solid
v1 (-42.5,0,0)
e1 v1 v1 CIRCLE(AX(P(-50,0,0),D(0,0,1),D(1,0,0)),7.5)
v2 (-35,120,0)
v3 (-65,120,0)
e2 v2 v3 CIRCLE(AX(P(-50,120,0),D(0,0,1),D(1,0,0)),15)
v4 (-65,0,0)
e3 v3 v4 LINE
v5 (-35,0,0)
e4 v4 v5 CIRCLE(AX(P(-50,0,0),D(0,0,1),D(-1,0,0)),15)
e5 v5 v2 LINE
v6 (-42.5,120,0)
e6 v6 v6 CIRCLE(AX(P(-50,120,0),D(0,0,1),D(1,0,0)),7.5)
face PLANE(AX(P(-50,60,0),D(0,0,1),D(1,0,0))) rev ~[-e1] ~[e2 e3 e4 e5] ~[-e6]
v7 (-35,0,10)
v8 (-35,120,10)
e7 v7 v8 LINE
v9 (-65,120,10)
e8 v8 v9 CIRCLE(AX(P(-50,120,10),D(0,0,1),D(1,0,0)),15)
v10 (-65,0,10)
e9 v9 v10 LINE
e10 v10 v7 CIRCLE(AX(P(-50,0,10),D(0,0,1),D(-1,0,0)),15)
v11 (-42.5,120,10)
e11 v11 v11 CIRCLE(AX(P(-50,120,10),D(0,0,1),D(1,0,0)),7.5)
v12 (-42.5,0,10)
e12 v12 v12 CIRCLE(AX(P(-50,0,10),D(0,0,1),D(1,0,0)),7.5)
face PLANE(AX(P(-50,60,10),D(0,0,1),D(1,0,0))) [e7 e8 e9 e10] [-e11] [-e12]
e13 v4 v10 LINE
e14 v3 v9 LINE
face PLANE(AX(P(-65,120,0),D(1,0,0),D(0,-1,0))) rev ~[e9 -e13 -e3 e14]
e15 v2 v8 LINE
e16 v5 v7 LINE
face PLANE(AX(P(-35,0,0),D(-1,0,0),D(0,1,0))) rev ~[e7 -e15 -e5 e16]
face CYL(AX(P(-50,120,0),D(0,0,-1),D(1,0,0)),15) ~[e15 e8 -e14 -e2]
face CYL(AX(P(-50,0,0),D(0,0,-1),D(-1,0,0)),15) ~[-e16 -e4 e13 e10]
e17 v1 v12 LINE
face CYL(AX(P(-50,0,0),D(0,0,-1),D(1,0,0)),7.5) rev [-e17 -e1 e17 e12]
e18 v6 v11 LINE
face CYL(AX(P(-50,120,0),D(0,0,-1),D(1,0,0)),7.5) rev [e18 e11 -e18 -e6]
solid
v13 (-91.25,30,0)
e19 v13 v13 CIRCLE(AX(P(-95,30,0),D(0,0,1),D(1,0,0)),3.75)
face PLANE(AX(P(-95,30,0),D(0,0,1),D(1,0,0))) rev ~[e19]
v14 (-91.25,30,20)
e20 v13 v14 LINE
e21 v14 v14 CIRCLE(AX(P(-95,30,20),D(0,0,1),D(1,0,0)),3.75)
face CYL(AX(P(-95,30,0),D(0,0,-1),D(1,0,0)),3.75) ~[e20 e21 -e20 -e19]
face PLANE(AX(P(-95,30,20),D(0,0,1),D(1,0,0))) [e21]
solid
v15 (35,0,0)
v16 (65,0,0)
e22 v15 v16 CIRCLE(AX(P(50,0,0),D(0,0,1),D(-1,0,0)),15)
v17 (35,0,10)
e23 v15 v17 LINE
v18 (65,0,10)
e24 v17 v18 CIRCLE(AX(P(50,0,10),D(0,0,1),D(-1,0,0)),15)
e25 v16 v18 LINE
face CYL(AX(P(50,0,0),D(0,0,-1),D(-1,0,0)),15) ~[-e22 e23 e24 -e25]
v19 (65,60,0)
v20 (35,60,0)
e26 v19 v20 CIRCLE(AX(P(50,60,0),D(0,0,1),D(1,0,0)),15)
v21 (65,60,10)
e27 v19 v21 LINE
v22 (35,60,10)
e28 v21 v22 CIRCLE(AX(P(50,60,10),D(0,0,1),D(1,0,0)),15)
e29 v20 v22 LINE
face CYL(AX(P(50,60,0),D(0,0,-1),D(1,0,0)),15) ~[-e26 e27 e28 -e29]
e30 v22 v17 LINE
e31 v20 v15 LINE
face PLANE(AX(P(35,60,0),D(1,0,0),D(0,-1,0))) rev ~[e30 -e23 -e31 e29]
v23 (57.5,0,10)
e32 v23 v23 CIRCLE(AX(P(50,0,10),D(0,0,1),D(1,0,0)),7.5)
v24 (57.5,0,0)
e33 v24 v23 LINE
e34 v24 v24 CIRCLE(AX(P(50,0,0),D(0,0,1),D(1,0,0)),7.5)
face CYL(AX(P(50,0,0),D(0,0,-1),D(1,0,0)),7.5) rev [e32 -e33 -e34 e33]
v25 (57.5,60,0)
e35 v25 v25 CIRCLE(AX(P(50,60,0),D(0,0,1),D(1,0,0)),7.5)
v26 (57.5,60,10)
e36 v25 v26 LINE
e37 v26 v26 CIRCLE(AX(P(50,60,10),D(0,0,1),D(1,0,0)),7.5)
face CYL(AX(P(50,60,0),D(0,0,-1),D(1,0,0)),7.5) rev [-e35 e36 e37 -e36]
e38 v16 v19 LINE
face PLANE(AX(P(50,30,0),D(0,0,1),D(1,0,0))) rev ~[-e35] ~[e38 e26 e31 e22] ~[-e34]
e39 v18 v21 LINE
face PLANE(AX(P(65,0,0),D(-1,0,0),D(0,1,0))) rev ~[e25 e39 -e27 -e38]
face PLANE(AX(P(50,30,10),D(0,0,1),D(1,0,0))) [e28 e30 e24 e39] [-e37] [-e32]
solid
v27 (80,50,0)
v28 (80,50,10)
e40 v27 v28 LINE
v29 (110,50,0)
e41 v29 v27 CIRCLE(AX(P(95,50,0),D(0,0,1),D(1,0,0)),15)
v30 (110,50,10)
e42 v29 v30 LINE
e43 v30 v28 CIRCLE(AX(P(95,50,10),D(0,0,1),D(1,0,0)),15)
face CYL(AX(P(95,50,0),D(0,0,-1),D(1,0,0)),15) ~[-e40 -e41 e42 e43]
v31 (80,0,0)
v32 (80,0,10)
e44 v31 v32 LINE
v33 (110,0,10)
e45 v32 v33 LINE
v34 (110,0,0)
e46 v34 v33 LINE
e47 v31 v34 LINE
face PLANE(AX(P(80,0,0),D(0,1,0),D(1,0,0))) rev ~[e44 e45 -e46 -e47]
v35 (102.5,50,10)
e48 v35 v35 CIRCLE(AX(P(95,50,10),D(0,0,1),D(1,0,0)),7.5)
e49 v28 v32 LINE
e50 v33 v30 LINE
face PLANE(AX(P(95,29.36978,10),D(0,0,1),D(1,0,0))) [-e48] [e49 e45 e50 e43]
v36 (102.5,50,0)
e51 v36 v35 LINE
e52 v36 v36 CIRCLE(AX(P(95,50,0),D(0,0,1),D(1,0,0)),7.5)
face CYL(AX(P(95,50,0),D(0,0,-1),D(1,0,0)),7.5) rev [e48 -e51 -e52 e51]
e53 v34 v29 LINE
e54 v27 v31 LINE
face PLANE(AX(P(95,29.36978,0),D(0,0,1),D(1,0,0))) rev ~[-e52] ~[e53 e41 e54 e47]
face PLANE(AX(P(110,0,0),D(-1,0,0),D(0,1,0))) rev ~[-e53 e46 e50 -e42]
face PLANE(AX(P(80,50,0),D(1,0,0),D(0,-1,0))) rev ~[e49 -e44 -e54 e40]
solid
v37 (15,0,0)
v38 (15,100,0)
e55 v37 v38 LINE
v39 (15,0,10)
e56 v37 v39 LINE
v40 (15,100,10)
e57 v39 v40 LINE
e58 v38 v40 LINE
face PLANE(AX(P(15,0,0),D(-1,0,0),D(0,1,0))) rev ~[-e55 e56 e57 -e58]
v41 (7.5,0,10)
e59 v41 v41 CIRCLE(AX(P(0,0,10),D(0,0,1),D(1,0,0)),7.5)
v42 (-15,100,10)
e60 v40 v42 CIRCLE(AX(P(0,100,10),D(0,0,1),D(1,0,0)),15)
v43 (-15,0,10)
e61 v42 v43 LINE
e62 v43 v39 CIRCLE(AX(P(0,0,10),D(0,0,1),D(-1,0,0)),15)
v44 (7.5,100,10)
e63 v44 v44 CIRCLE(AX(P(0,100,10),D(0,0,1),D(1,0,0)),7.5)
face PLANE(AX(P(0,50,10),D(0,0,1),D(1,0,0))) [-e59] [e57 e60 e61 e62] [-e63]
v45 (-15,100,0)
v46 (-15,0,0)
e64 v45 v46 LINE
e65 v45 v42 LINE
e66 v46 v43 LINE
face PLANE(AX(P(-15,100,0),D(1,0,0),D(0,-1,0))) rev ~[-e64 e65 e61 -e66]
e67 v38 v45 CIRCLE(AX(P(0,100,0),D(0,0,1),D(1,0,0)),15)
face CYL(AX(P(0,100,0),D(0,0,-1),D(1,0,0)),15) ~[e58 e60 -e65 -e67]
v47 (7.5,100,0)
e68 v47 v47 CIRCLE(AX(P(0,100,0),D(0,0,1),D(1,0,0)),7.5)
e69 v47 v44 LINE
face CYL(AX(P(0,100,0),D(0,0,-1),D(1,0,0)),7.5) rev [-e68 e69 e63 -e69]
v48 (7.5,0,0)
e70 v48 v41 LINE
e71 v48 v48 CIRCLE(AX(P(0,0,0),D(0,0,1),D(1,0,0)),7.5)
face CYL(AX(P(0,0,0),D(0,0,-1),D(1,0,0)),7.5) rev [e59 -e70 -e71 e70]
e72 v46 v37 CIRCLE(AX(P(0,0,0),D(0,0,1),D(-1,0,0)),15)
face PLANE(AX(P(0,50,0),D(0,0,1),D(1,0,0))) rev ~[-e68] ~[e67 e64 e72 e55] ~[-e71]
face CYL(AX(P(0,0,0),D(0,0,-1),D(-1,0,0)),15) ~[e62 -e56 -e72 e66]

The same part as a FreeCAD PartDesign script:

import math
import FreeCAD as App
import Part
import Sketcher

V = App.Vector

doc = App.newDocument("Part")
body = doc.addObject("PartDesign::Body", "Body")

sketch1 = body.newObject("Sketcher::SketchObject", "Sketch")
sketch1.AttachmentSupport = (doc.getObject("XY_Plane"), [""])
sketch1.MapMode = "FlatFace"
sketch1.addGeometry(Part.LineSegment(V(-35, 0, 0), V(-35, 120, 0)), False)
sketch1.addGeometry(Part.ArcOfCircle(Part.Circle(V(-50, 120, 0), V(0, 0, 1), 15), math.radians(0), math.radians(180)), False)
sketch1.addGeometry(Part.LineSegment(V(-65, 120, 0), V(-65, 0, 0)), False)
sketch1.addGeometry(Part.ArcOfCircle(Part.Circle(V(-50, 0, 0), V(0, 0, 1), 15), math.radians(180), math.radians(360)), False)
sketch1.addGeometry(Part.Circle(V(-50, 0, 0), V(0, 0, 1), 8), False)
sketch1.addGeometry(Part.Circle(V(-50, 120, 0), V(0, 0, 1), 8), False)
sketch1.addConstraint(Sketcher.Constraint("Tangent", 0, 2, 1, 1))
sketch1.addConstraint(Sketcher.Constraint("Tangent", 1, 2, 2, 1))
sketch1.addConstraint(Sketcher.Constraint("Tangent", 2, 2, 3, 1))
sketch1.addConstraint(Sketcher.Constraint("Tangent", 3, 2, 0, 1))
sketch1.addConstraint(Sketcher.Constraint("Vertical", 0))
sketch1.addConstraint(Sketcher.Constraint("Vertical", 2))
sketch1.addConstraint(Sketcher.Constraint("Coincident", 4, 3, 3, 3))
sketch1.addConstraint(Sketcher.Constraint("Coincident", 5, 3, 1, 3))
sketch1.addConstraint(Sketcher.Constraint("Equal", 4, 5))
sketch1.addConstraint(Sketcher.Constraint("PointOnObject", 3, 3, -1))
sketch1.addConstraint(Sketcher.Constraint("Diameter", 4, 15.0))
sketch1.addConstraint(Sketcher.Constraint("Radius", 1, 15.0))
sketch1.addConstraint(Sketcher.Constraint("DistanceY", 0, 1, 0, 2, 120.0))
sketch1.addConstraint(Sketcher.Constraint("DistanceX", 1, 3, -1, 1, 50.0))
pad1 = body.newObject("PartDesign::Pad", "Pad")
pad1.Profile = sketch1
pad1.Length = 10
body2 = doc.addObject("PartDesign::Body", "Body001")

sketch2 = body2.newObject("Sketcher::SketchObject", "Sketch001")
sketch2.AttachmentSupport = (doc.getObject("XY_Plane001"), [""])
sketch2.MapMode = "FlatFace"
sketch2.addGeometry(Part.ArcOfCircle(Part.Circle(V(0, 0, 0), V(0, 0, 1), 15), math.radians(180), math.radians(360)), False)
sketch2.addGeometry(Part.LineSegment(V(15, 0, 0), V(15, 100, 0)), False)
sketch2.addGeometry(Part.ArcOfCircle(Part.Circle(V(0, 100, 0), V(0, 0, 1), 15), math.radians(0), math.radians(180)), False)
sketch2.addGeometry(Part.LineSegment(V(-15, 100, 0), V(-15, 0, 0)), False)
sketch2.addGeometry(Part.Circle(V(0, 0, 0), V(0, 0, 1), 8), False)
sketch2.addGeometry(Part.Circle(V(0, 100, 0), V(0, 0, 1), 8), False)
sketch2.addConstraint(Sketcher.Constraint("Tangent", 0, 2, 1, 1))
sketch2.addConstraint(Sketcher.Constraint("Tangent", 1, 2, 2, 1))
sketch2.addConstraint(Sketcher.Constraint("Tangent", 2, 2, 3, 1))
sketch2.addConstraint(Sketcher.Constraint("Tangent", 3, 2, 0, 1))
sketch2.addConstraint(Sketcher.Constraint("Vertical", 1))
sketch2.addConstraint(Sketcher.Constraint("Vertical", 3))
sketch2.addConstraint(Sketcher.Constraint("Coincident", 0, 3, -1, 1))
sketch2.addConstraint(Sketcher.Constraint("Coincident", 4, 3, -1, 1))
sketch2.addConstraint(Sketcher.Constraint("Coincident", 5, 3, 2, 3))
sketch2.addConstraint(Sketcher.Constraint("Equal", 4, 5))
sketch2.addConstraint(Sketcher.Constraint("Diameter", 4, 15.0))
sketch2.addConstraint(Sketcher.Constraint("Radius", 0, 15.0))
sketch2.addConstraint(Sketcher.Constraint("DistanceY", 1, 1, 1, 2, 100.0))
pad2 = body2.newObject("PartDesign::Pad", "Pad001")
pad2.Profile = sketch2
pad2.Length = 10
body3 = doc.addObject("PartDesign::Body", "Body002")

sketch3 = body3.newObject("Sketcher::SketchObject", "Sketch002")
sketch3.AttachmentSupport = (doc.getObject("XY_Plane002"), [""])
sketch3.MapMode = "FlatFace"
sketch3.addGeometry(Part.ArcOfCircle(Part.Circle(V(50, 0, 0), V(0, 0, 1), 15), math.radians(180), math.radians(360)), False)
sketch3.addGeometry(Part.LineSegment(V(65, 0, 0), V(65, 60, 0)), False)
sketch3.addGeometry(Part.ArcOfCircle(Part.Circle(V(50, 60, 0), V(0, 0, 1), 15), math.radians(0), math.radians(180)), False)
sketch3.addGeometry(Part.LineSegment(V(35, 60, 0), V(35, 0, 0)), False)
sketch3.addGeometry(Part.Circle(V(50, 0, 0), V(0, 0, 1), 8), False)
sketch3.addGeometry(Part.Circle(V(50, 60, 0), V(0, 0, 1), 8), False)
sketch3.addConstraint(Sketcher.Constraint("Tangent", 0, 2, 1, 1))
sketch3.addConstraint(Sketcher.Constraint("Tangent", 1, 2, 2, 1))
sketch3.addConstraint(Sketcher.Constraint("Tangent", 2, 2, 3, 1))
sketch3.addConstraint(Sketcher.Constraint("Tangent", 3, 2, 0, 1))
sketch3.addConstraint(Sketcher.Constraint("Vertical", 1))
sketch3.addConstraint(Sketcher.Constraint("Vertical", 3))
sketch3.addConstraint(Sketcher.Constraint("Coincident", 4, 3, 0, 3))
sketch3.addConstraint(Sketcher.Constraint("Coincident", 5, 3, 2, 3))
sketch3.addConstraint(Sketcher.Constraint("Equal", 4, 5))
sketch3.addConstraint(Sketcher.Constraint("PointOnObject", 0, 3, -1))
sketch3.addConstraint(Sketcher.Constraint("Diameter", 4, 15.0))
sketch3.addConstraint(Sketcher.Constraint("Radius", 0, 15.0))
sketch3.addConstraint(Sketcher.Constraint("DistanceY", 1, 1, 1, 2, 60.0))
sketch3.addConstraint(Sketcher.Constraint("DistanceX", -1, 1, 0, 3, 50.0))
pad3 = body3.newObject("PartDesign::Pad", "Pad002")
pad3.Profile = sketch3
pad3.Length = 10
body4 = doc.addObject("PartDesign::Body", "Body003")

sketch4 = body4.newObject("Sketcher::SketchObject", "Sketch003")
sketch4.AttachmentSupport = (doc.getObject("XY_Plane003"), [""])
sketch4.MapMode = "FlatFace"
sketch4.addGeometry(Part.LineSegment(V(80, 50, 0), V(80, 0, 0)), False)
sketch4.addGeometry(Part.LineSegment(V(80, 0, 0), V(110, 0, 0)), False)
sketch4.addGeometry(Part.LineSegment(V(110, 0, 0), V(110, 50, 0)), False)
sketch4.addGeometry(Part.ArcOfCircle(Part.Circle(V(95, 50, 0), V(0, 0, 1), 15), math.radians(0), math.radians(180)), False)
sketch4.addGeometry(Part.Circle(V(95, 50, 0), V(0, 0, 1), 8), False)
sketch4.addConstraint(Sketcher.Constraint("Coincident", 0, 2, 1, 1))
sketch4.addConstraint(Sketcher.Constraint("Coincident", 1, 2, 2, 1))
sketch4.addConstraint(Sketcher.Constraint("Tangent", 2, 2, 3, 1))
sketch4.addConstraint(Sketcher.Constraint("Tangent", 3, 2, 0, 1))
sketch4.addConstraint(Sketcher.Constraint("Vertical", 0))
sketch4.addConstraint(Sketcher.Constraint("Horizontal", 1))
sketch4.addConstraint(Sketcher.Constraint("Vertical", 2))
sketch4.addConstraint(Sketcher.Constraint("Coincident", 4, 3, 3, 3))
sketch4.addConstraint(Sketcher.Constraint("PointOnObject", 0, 2, -1))
sketch4.addConstraint(Sketcher.Constraint("Diameter", 4, 15.0))
sketch4.addConstraint(Sketcher.Constraint("Radius", 3, 15.0))
sketch4.addConstraint(Sketcher.Constraint("DistanceY", 0, 2, 0, 1, 50.0))
sketch4.addConstraint(Sketcher.Constraint("DistanceX", -1, 1, 3, 3, 95.0))
pad4 = body4.newObject("PartDesign::Pad", "Pad003")
pad4.Profile = sketch4
pad4.Length = 10
body5 = doc.addObject("PartDesign::Body", "Body004")

sketch5 = body5.newObject("Sketcher::SketchObject", "Sketch004")
sketch5.AttachmentSupport = (doc.getObject("XY_Plane004"), [""])
sketch5.MapMode = "FlatFace"
sketch5.addGeometry(Part.Circle(V(-95, 30, 0), V(0, 0, 1), 3.8), False)
sketch5.addConstraint(Sketcher.Constraint("Diameter", 0, 7.5))
sketch5.addConstraint(Sketcher.Constraint("DistanceX", 0, 3, -1, 1, 95.0))
sketch5.addConstraint(Sketcher.Constraint("DistanceY", -1, 1, 0, 3, 30.0))
pad5 = body5.newObject("PartDesign::Pad", "Pad004")
pad5.Profile = sketch5
pad5.Length = 20

doc.recompute()
